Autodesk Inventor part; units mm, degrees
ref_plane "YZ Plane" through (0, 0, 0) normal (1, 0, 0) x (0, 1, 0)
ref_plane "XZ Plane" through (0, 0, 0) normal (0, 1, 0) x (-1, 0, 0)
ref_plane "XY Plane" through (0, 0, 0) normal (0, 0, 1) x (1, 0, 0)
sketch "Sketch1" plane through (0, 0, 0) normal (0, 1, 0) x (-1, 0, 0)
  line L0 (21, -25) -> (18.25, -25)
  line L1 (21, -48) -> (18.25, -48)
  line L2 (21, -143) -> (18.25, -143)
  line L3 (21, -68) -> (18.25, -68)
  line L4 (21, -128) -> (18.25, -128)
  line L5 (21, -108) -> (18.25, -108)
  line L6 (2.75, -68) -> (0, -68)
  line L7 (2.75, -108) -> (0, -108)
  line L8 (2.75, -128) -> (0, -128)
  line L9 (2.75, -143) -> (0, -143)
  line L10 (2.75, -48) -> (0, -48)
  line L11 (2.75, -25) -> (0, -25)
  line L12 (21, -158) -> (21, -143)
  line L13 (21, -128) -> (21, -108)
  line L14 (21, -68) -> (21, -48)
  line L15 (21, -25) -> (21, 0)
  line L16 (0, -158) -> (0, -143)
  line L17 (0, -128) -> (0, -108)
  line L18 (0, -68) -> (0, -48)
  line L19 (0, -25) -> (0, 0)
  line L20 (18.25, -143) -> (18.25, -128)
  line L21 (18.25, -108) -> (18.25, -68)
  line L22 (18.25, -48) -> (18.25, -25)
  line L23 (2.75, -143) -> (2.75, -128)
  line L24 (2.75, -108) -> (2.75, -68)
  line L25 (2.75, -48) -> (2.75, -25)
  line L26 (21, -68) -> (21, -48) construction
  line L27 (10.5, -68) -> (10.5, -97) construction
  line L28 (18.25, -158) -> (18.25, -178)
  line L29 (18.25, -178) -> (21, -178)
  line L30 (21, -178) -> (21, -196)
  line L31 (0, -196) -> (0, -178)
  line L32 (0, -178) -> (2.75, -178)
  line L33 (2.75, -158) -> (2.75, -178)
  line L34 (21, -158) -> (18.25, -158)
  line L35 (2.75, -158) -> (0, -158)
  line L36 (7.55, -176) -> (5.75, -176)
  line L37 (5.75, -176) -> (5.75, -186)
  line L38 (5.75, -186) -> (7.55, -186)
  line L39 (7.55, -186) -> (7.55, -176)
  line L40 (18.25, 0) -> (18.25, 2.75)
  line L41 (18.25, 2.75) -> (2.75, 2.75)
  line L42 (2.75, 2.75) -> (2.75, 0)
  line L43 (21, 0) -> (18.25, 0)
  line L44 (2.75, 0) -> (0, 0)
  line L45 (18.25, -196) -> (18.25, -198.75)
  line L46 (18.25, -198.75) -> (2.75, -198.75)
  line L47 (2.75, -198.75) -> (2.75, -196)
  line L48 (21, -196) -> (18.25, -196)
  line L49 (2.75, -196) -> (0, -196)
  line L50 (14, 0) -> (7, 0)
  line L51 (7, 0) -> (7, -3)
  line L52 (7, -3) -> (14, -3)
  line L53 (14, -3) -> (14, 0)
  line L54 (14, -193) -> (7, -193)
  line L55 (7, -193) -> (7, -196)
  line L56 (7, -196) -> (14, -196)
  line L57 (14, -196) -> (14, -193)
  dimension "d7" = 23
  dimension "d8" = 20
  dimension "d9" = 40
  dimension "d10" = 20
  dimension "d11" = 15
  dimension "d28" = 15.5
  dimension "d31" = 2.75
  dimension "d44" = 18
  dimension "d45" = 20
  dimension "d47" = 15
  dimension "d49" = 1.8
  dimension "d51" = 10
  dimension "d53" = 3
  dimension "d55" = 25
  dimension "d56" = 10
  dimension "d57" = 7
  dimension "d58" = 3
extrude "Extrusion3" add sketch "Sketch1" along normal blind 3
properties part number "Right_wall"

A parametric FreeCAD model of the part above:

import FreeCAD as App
import Part
import Sketcher
Q = App.Units.Quantity


def add_polygon(sketch, points):
    """Adds a closed chain of lines whose ends are joined by coincident constraints."""
    first, n = sketch.GeometryCount, len(points)
    for a, b in zip(points, points[1:] + points[:1]):
        sketch.addGeometry(Part.LineSegment(App.Vector(*a, 0), App.Vector(*b, 0)), False)
    for i in range(n):
        sketch.addConstraint(Sketcher.Constraint("Coincident", first + i, 2, first + (i + 1) % n, 1))

doc = App.newDocument("Part")
body = doc.addObject("PartDesign::Body", "Body")

sketch1 = body.newObject("Sketcher::SketchObject", "Sketch")
sketch1.AttachmentSupport = (doc.getObject("XZ_Plane"), [""])
sketch1.MapMode = "FlatFace"
add_polygon(sketch1, [(-18.2, -25), (-21, -25), (-21, 0), (-18.2, 0), (-18.2, 2.8), (-2.8, 2.8), (-2.8, 0), (0, 0), (0, -25), (-2.8, -25), (-2.8, -48), (0, -48), (0, -68), (-2.8, -68), (-2.8, -108), (0, -108), (0, -128), (-2.8, -128), (-2.8, -143), (0, -143), (0, -158), (-2.8, -158), (-2.8, -178), (0, -178), (0, -196), (-2.8, -196), (-2.8, -198.8), (-18.2, -198.8), (-18.2, -196), (-21, -196), (-21, -178), (-18.2, -178), (-18.2, -158), (-21, -158), (-21, -143), (-18.2, -143), (-18.2, -128), (-21, -128), (-21, -108), (-18.2, -108), (-18.2, -68), (-21, -68), (-21, -48), (-18.2, -48)])
add_polygon(sketch1, [(-5.8, -176), (-7.5, -176), (-7.5, -186), (-5.8, -186)])
add_polygon(sketch1, [(-7, -193), (-14, -193), (-14, -196), (-7, -196)])
add_polygon(sketch1, [(-7, 0), (-14, 0), (-14, -3), (-7, -3)])
sketch1.addConstraint([
    Sketcher.Constraint("Horizontal", 0),
    Sketcher.Constraint("Vertical", 1),
    Sketcher.Constraint("Horizontal", 2),
    Sketcher.Constraint("Vertical", 3),
    Sketcher.Constraint("Horizontal", 4),
    Sketcher.Constraint("Vertical", 5),
    Sketcher.Constraint("Horizontal", 6),
    Sketcher.Constraint("Vertical", 7),
    Sketcher.Constraint("Horizontal", 8),
    Sketcher.Constraint("Vertical", 9),
    Sketcher.Constraint("Horizontal", 10),
    Sketcher.Constraint("Vertical", 11),
    Sketcher.Constraint("Horizontal", 12),
    Sketcher.Constraint("Vertical", 13),
    Sketcher.Constraint("Horizontal", 14),
    Sketcher.Constraint("Vertical", 15),
    Sketcher.Constraint("Horizontal", 16),
    Sketcher.Constraint("Vertical", 17),
    Sketcher.Constraint("Horizontal", 18),
    Sketcher.Constraint("Vertical", 19),
    Sketcher.Constraint("Horizontal", 20),
    Sketcher.Constraint("Vertical", 21),
    Sketcher.Constraint("Horizontal", 22),
    Sketcher.Constraint("Vertical", 23),
    Sketcher.Constraint("Horizontal", 24),
    Sketcher.Constraint("Vertical", 25),
    Sketcher.Constraint("Horizontal", 26),
    Sketcher.Constraint("Vertical", 27),
    Sketcher.Constraint("Horizontal", 28),
    Sketcher.Constraint("Vertical", 29),
    Sketcher.Constraint("Horizontal", 30),
    Sketcher.Constraint("Vertical", 31),
    Sketcher.Constraint("Horizontal", 32),
    Sketcher.Constraint("Vertical", 33),
    Sketcher.Constraint("Horizontal", 34),
    Sketcher.Constraint("Vertical", 35),
    Sketcher.Constraint("Horizontal", 36),
    Sketcher.Constraint("Vertical", 37),
    Sketcher.Constraint("Horizontal", 38),
    Sketcher.Constraint("Vertical", 39),
    Sketcher.Constraint("Horizontal", 40),
    Sketcher.Constraint("Vertical", 41),
    Sketcher.Constraint("Horizontal", 42),
    Sketcher.Constraint("Vertical", 43),
    Sketcher.Constraint("Horizontal", 44),
    Sketcher.Constraint("Vertical", 45),
    Sketcher.Constraint("Horizontal", 46),
    Sketcher.Constraint("Vertical", 47),
    Sketcher.Constraint("Horizontal", 48),
    Sketcher.Constraint("Vertical", 49),
    Sketcher.Constraint("Horizontal", 50),
    Sketcher.Constraint("Vertical", 51),
    Sketcher.Constraint("Horizontal", 52),
    Sketcher.Constraint("Vertical", 53),
    Sketcher.Constraint("Horizontal", 54),
    Sketcher.Constraint("Vertical", 55),
    Sketcher.Constraint("Coincident", 6, 2, -1, 1),
    Sketcher.Constraint("PointOnObject", 1, 2, -1),
    Sketcher.Constraint("PointOnObject", 10, 2, -2),
    Sketcher.Constraint("PointOnObject", 14, 2, -2),
    Sketcher.Constraint("PointOnObject", 18, 2, -2),
    Sketcher.Constraint("PointOnObject", 22, 2, -2),
    Sketcher.Constraint("PointOnObject", 52, 2, -1),
    Sketcher.Constraint("Horizontal", 0, 2, 7, 2),
    Sketcher.Constraint("Horizontal", 24, 2, 27, 2),
    Sketcher.Constraint("Horizontal", 22, 2, 29, 2),
    Sketcher.Constraint("Horizontal", 20, 2, 31, 2),
    Sketcher.Constraint("Horizontal", 18, 2, 33, 2),
    Sketcher.Constraint("Horizontal", 16, 2, 35, 2),
    Sketcher.Constraint("Horizontal", 14, 2, 37, 2),
    Sketcher.Constraint("Horizontal", 12, 2, 39, 2),
    Sketcher.Constraint("Horizontal", 10, 2, 41, 2),
    Sketcher.Constraint("Horizontal", 28, 2, 49, 2),
    Sketcher.Constraint("Vertical", 5, 2, 8, 2),
    Sketcher.Constraint("Vertical", 9, 2, 12, 2),
    Sketcher.Constraint("Vertical", 13, 2, 16, 2),
    Sketcher.Constraint("Vertical", 17, 2, 20, 2),
    Sketcher.Constraint("Vertical", 21, 2, 24, 2),
    Sketcher.Constraint("Vertical", 3, 2, 26, 2),
    Sketcher.Constraint("Vertical", 1, 2, 28, 2),
    Sketcher.Constraint("Vertical", 27, 2, 30, 2),
    Sketcher.Constraint("Vertical", 29, 2, 32, 2),
    Sketcher.Constraint("Vertical", 31, 2, 34, 2),
    Sketcher.Constraint("Vertical", 33, 2, 36, 2),
    Sketcher.Constraint("Vertical", 35, 2, 38, 2),
    Sketcher.Constraint("Vertical", 37, 2, 40, 2),
    Sketcher.Constraint("Vertical", 39, 2, 42, 2),
    Sketcher.Constraint("Vertical", 49, 2, 52, 2),
    Sketcher.Constraint("Vertical", 51, 2, 54, 2),
    Sketcher.Constraint("Equal", 2, 6),
    Sketcher.Constraint("Equal", 42, 3),
    Sketcher.Constraint("Equal", 11, 15),
    Sketcher.Constraint("Equal", 17, 19),
    Sketcher.Constraint("Equal", 15, 21),
    Sketcher.Constraint("Equal", 5, 25),
    Sketcher.Constraint("Equal", 51, 53),
    Sketcher.Constraint("DistanceX", 48, 2, 48, 1, Q("7 mm")),
    Sketcher.Constraint("DistanceY", 1, 1, 1, 2, Q("25 mm")),
    Sketcher.Constraint("DistanceY", 9, 2, 9, 1, Q("23 mm")),
    Sketcher.Constraint("DistanceY", 11, 2, 11, 1, Q("20 mm")),
    Sketcher.Constraint("DistanceY", 13, 2, 13, 1, Q("40 mm")),
    Sketcher.Constraint("DistanceY", 17, 2, 17, 1, Q("15 mm")),
    Sketcher.Constraint("DistanceY", 23, 2, 23, 1, Q("18 mm")),
    Sketcher.Constraint("DistanceY", 45, 2, 45, 1, Q("10 mm")),
    Sketcher.Constraint("DistanceY", 49, 2, 49, 1, Q("3 mm")),
    Sketcher.Constraint("DistanceX", 4, 1, 4, 2, Q("15.5 mm")),
    Sketcher.Constraint("DistanceX", 44, 2, 44, 1, Q("1.8 mm")),
    Sketcher.Constraint("DistanceX", 50, 2, -1, 1, Q("7 mm")),
    Sketcher.Constraint("DistanceY", 44, 2, 20, 2, Q("18 mm")),
    Sketcher.Constraint("DistanceX", 46, 2, 21, 2, Q("3 mm")),
    Sketcher.Constraint("DistanceX", 28, 2, 48, 2, Q("7 mm")),
])
pad1 = body.newObject("PartDesign::Pad", "Pad")
pad1.Profile = sketch1
pad1.Length = 3
pad1.Reversed = True

doc.recompute()
